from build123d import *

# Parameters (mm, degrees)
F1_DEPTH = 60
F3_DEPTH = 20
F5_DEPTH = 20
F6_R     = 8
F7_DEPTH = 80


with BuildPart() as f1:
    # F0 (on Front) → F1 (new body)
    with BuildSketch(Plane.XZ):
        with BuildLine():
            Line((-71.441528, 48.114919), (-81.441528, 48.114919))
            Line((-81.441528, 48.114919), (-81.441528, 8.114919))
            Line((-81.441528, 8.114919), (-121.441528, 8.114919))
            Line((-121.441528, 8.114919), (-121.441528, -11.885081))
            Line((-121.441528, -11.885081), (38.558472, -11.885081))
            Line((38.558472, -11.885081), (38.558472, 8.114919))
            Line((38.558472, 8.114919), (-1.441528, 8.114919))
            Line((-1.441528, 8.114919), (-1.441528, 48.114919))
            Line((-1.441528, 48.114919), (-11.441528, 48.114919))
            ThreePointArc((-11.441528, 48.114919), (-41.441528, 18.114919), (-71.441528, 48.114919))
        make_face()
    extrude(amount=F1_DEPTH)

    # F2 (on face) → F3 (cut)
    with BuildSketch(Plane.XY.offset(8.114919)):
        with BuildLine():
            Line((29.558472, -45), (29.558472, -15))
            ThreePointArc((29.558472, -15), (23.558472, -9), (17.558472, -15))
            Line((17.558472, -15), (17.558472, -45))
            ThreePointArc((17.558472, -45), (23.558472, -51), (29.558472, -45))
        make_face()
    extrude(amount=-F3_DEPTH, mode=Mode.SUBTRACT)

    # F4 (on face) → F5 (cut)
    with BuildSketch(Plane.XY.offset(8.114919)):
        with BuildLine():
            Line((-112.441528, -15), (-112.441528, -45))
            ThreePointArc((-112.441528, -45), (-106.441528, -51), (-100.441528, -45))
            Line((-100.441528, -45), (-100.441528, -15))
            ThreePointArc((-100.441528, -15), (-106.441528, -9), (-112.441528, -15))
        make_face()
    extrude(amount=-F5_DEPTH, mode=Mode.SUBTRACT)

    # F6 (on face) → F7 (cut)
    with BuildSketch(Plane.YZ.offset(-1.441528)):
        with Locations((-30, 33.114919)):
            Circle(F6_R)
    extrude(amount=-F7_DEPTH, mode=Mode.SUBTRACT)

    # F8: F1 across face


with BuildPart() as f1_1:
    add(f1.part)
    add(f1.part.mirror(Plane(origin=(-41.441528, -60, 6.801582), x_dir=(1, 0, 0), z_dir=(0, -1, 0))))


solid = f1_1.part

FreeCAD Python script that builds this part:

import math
import FreeCAD as App
import Part
import Sketcher
Q = App.Units.Quantity

doc = App.newDocument("Part")
body = doc.addObject("PartDesign::Body", "Body")

sketch1 = doc.addObject("Sketcher::SketchObject", "Sketch")
body.addObject(sketch1)
sketch1.AttachmentSupport = (doc.XZ_Plane, [""])
sketch1.MapMode = "FlatFace"
sketch1.addGeometry(Part.LineSegment(App.Vector(-71.441528, 48.114919, 0), App.Vector(-81.441528, 48.114919, 0)), False)
sketch1.addGeometry(Part.LineSegment(App.Vector(-81.441528, 48.114919, 0), App.Vector(-81.441528, 8.114919, 0)), False)
sketch1.addGeometry(Part.LineSegment(App.Vector(-81.441528, 8.114919, 0), App.Vector(-121.441528, 8.114919, 0)), False)
sketch1.addGeometry(Part.LineSegment(App.Vector(-121.441528, 8.114919, 0), App.Vector(-121.441528, -11.885081, 0)), False)
sketch1.addGeometry(Part.LineSegment(App.Vector(-121.441528, -11.885081, 0), App.Vector(38.558472, -11.885081, 0)), False)
sketch1.addGeometry(Part.LineSegment(App.Vector(38.558472, -11.885081, 0), App.Vector(38.558472, 8.114919, 0)), False)
sketch1.addGeometry(Part.LineSegment(App.Vector(38.558472, 8.114919, 0), App.Vector(-1.441528, 8.114919, 0)), False)
sketch1.addGeometry(Part.LineSegment(App.Vector(-1.441528, 8.114919, 0), App.Vector(-1.441528, 48.114919, 0)), False)
sketch1.addGeometry(Part.LineSegment(App.Vector(-1.441528, 48.114919, 0), App.Vector(-11.441528, 48.114919, 0)), False)
sketch1.addGeometry(Part.ArcOfCircle(Part.Circle(App.Vector(-41.441528, 48.114919, 0), App.Vector(0, 0, 1), 30), math.radians(180), math.radians(360)), False)
sketch1.addConstraint(Sketcher.Constraint("Coincident", 0, 2, 1, 1))
sketch1.addConstraint(Sketcher.Constraint("Coincident", 1, 2, 2, 1))
sketch1.addConstraint(Sketcher.Constraint("Coincident", 2, 2, 3, 1))
sketch1.addConstraint(Sketcher.Constraint("Coincident", 3, 2, 4, 1))
sketch1.addConstraint(Sketcher.Constraint("Coincident", 4, 2, 5, 1))
sketch1.addConstraint(Sketcher.Constraint("Coincident", 5, 2, 6, 1))
sketch1.addConstraint(Sketcher.Constraint("Coincident", 6, 2, 7, 1))
sketch1.addConstraint(Sketcher.Constraint("Coincident", 7, 2, 8, 1))
sketch1.addConstraint(Sketcher.Constraint("Coincident", 8, 2, 9, 2))
sketch1.addConstraint(Sketcher.Constraint("Coincident", 9, 1, 0, 1))
sketch1.addConstraint(Sketcher.Constraint("Horizontal", 0))
sketch1.addConstraint(Sketcher.Constraint("Vertical", 1))
sketch1.addConstraint(Sketcher.Constraint("Horizontal", 2))
sketch1.addConstraint(Sketcher.Constraint("Vertical", 3))
sketch1.addConstraint(Sketcher.Constraint("Horizontal", 4))
sketch1.addConstraint(Sketcher.Constraint("Vertical", 5))
sketch1.addConstraint(Sketcher.Constraint("Horizontal", 6))
sketch1.addConstraint(Sketcher.Constraint("Vertical", 7))
sketch1.addConstraint(Sketcher.Constraint("Horizontal", 8))
sketch1.addConstraint(Sketcher.Constraint("Horizontal", 9, 3, 0, 2))
sketch1.addConstraint(Sketcher.Constraint("Horizontal", 2, 2, 5, 2))
sketch1.addConstraint(Sketcher.Constraint("Horizontal", 0, 2, 7, 2))
sketch1.addConstraint(Sketcher.Constraint("Equal", 2, 6))
sketch1.addConstraint(Sketcher.Constraint("Equal", 0, 8))
sketch1.addConstraint(Sketcher.Constraint("Equal", 6, 1))
sketch1.addConstraint(Sketcher.Constraint("Radius", 9, Q("30 mm")))
sketch1.addConstraint(Sketcher.Constraint("DistanceX", 0, 2, 0, 1, Q("10 mm")))
sketch1.addConstraint(Sketcher.Constraint("DistanceX", 2, 2, 2, 1, Q("40 mm")))
sketch1.addConstraint(Sketcher.Constraint("DistanceY", 3, 2, 3, 1, Q("20 mm")))
sketch1.addConstraint(Sketcher.Constraint("DistanceY", -1, 1, 9, 3, Q("48.114919 mm")))
sketch1.addConstraint(Sketcher.Constraint("DistanceX", 0, 2, -1, 1, Q("81.441528 mm")))
pad1 = doc.addObject("PartDesign::Pad", "Pad")
body.addObject(pad1)
pad1.Profile = sketch1
pad1.Length = 60

sketch2 = doc.addObject("Sketcher::SketchObject", "Sketch001")
body.addObject(sketch2)
sketch2.AttachmentSupport = (doc.XY_Plane, [""])
sketch2.MapMode = "FlatFace"
sketch2.AttachmentOffset = App.Placement(App.Vector(0, 0, 8.114919), App.Rotation())
sketch2.addGeometry(Part.LineSegment(App.Vector(29.558472, -45, 0), App.Vector(29.558472, -15, 0)), False)
sketch2.addGeometry(Part.ArcOfCircle(Part.Circle(App.Vector(23.558472, -15, 0), App.Vector(0, 0, 1), 6), math.radians(0), math.radians(180)), False)
sketch2.addGeometry(Part.LineSegment(App.Vector(17.558472, -15, 0), App.Vector(17.558472, -45, 0)), False)
sketch2.addGeometry(Part.ArcOfCircle(Part.Circle(App.Vector(23.558472, -45, 0), App.Vector(0, 0, 1), 6), math.radians(180), math.radians(360)), False)
sketch2.addConstraint(Sketcher.Constraint("Tangent", 0, 2, 1, 1))
sketch2.addConstraint(Sketcher.Constraint("Tangent", 1, 2, 2, 1))
sketch2.addConstraint(Sketcher.Constraint("Tangent", 2, 2, 3, 1))
sketch2.addConstraint(Sketcher.Constraint("Tangent", 3, 2, 0, 1))
sketch2.addConstraint(Sketcher.Constraint("Vertical", 0))
sketch2.addConstraint(Sketcher.Constraint("Vertical", 2))
sketch2.addConstraint(Sketcher.Constraint("Radius", 1, Q("6 mm")))
sketch2.addConstraint(Sketcher.Constraint("DistanceY", 0, 1, 0, 2, Q("30 mm")))
sketch2.addConstraint(Sketcher.Constraint("DistanceY", 1, 3, -1, 1, Q("15 mm")))
sketch2.addConstraint(Sketcher.Constraint("DistanceX", -1, 1, 1, 3, Q("23.558472 mm")))
pocket1 = doc.addObject("PartDesign::Pocket", "Pocket")
body.addObject(pocket1)
pocket1.Profile = sketch2
pocket1.Length = 20

sketch3 = doc.addObject("Sketcher::SketchObject", "Sketch002")
body.addObject(sketch3)
sketch3.AttachmentSupport = (doc.XY_Plane, [""])
sketch3.MapMode = "FlatFace"
sketch3.AttachmentOffset = App.Placement(App.Vector(0, 0, 8.114919), App.Rotation())
sketch3.addGeometry(Part.LineSegment(App.Vector(-112.441528, -15, 0), App.Vector(-112.441528, -45, 0)), False)
sketch3.addGeometry(Part.ArcOfCircle(Part.Circle(App.Vector(-106.441528, -45, 0), App.Vector(0, 0, 1), 6), math.radians(180), math.radians(360)), False)
sketch3.addGeometry(Part.LineSegment(App.Vector(-100.441528, -45, 0), App.Vector(-100.441528, -15, 0)), False)
sketch3.addGeometry(Part.ArcOfCircle(Part.Circle(App.Vector(-106.441528, -15, 0), App.Vector(0, 0, 1), 6), math.radians(0), math.radians(180)), False)
sketch3.addConstraint(Sketcher.Constraint("Tangent", 0, 2, 1, 1))
sketch3.addConstraint(Sketcher.Constraint("Tangent", 1, 2, 2, 1))
sketch3.addConstraint(Sketcher.Constraint("Tangent", 2, 2, 3, 1))
sketch3.addConstraint(Sketcher.Constraint("Tangent", 3, 2, 0, 1))
sketch3.addConstraint(Sketcher.Constraint("Vertical", 0))
sketch3.addConstraint(Sketcher.Constraint("Vertical", 2))
sketch3.addConstraint(Sketcher.Constraint("Radius", 1, Q("6 mm")))
sketch3.addConstraint(Sketcher.Constraint("DistanceY", 0, 2, 0, 1, Q("30 mm")))
sketch3.addConstraint(Sketcher.Constraint("DistanceY", 1, 3, -1, 1, Q("45 mm")))
sketch3.addConstraint(Sketcher.Constraint("DistanceX", 1, 3, -1, 1, Q("106.441528 mm")))
pocket2 = doc.addObject("PartDesign::Pocket", "Pocket001")
body.addObject(pocket2)
pocket2.Profile = sketch3
pocket2.Length = 20

sketch4 = doc.addObject("Sketcher::SketchObject", "Sketch003")
body.addObject(sketch4)
sketch4.AttachmentSupport = (doc.YZ_Plane, [""])
sketch4.MapMode = "FlatFace"
sketch4.AttachmentOffset = App.Placement(App.Vector(0, 0, -1.441528), App.Rotation())
sketch4.addGeometry(Part.Circle(App.Vector(-30, 33.114919, 0), App.Vector(0, 0, 1), 8), False)
sketch4.addConstraint(Sketcher.Constraint("Diameter", 0, Q("16 mm")))
sketch4.addConstraint(Sketcher.Constraint("DistanceX", 0, 3, -1, 1, Q("30 mm")))
sketch4.addConstraint(Sketcher.Constraint("DistanceY", -1, 1, 0, 3, Q("33.114919 mm")))
pocket3 = doc.addObject("PartDesign::Pocket", "Pocket002")
body.addObject(pocket3)
pocket3.Profile = sketch4
pocket3.Length = 80
body2 = doc.addObject("PartDesign::Body", "Body001")
doc.recompute()

body2.BaseFeature = body
doc.recompute()

mirroring = doc.addObject("Part::Mirroring", "Mirroring")
mirroring.Source = body
mirroring.Base = App.Vector(-41.441528, -60, 6.801582)
mirroring.Normal = App.Vector(0, -1, 0)
body3 = doc.addObject("PartDesign::Body", "Body002")
body3.BaseFeature = mirroring
boolean = doc.addObject("PartDesign::Boolean", "Boolean")
body2.addObject(boolean)
boolean.Type = "Fuse"
boolean.addObjects([body3])
doc.recompute()
mirroring.Visibility = False

doc.recompute()
